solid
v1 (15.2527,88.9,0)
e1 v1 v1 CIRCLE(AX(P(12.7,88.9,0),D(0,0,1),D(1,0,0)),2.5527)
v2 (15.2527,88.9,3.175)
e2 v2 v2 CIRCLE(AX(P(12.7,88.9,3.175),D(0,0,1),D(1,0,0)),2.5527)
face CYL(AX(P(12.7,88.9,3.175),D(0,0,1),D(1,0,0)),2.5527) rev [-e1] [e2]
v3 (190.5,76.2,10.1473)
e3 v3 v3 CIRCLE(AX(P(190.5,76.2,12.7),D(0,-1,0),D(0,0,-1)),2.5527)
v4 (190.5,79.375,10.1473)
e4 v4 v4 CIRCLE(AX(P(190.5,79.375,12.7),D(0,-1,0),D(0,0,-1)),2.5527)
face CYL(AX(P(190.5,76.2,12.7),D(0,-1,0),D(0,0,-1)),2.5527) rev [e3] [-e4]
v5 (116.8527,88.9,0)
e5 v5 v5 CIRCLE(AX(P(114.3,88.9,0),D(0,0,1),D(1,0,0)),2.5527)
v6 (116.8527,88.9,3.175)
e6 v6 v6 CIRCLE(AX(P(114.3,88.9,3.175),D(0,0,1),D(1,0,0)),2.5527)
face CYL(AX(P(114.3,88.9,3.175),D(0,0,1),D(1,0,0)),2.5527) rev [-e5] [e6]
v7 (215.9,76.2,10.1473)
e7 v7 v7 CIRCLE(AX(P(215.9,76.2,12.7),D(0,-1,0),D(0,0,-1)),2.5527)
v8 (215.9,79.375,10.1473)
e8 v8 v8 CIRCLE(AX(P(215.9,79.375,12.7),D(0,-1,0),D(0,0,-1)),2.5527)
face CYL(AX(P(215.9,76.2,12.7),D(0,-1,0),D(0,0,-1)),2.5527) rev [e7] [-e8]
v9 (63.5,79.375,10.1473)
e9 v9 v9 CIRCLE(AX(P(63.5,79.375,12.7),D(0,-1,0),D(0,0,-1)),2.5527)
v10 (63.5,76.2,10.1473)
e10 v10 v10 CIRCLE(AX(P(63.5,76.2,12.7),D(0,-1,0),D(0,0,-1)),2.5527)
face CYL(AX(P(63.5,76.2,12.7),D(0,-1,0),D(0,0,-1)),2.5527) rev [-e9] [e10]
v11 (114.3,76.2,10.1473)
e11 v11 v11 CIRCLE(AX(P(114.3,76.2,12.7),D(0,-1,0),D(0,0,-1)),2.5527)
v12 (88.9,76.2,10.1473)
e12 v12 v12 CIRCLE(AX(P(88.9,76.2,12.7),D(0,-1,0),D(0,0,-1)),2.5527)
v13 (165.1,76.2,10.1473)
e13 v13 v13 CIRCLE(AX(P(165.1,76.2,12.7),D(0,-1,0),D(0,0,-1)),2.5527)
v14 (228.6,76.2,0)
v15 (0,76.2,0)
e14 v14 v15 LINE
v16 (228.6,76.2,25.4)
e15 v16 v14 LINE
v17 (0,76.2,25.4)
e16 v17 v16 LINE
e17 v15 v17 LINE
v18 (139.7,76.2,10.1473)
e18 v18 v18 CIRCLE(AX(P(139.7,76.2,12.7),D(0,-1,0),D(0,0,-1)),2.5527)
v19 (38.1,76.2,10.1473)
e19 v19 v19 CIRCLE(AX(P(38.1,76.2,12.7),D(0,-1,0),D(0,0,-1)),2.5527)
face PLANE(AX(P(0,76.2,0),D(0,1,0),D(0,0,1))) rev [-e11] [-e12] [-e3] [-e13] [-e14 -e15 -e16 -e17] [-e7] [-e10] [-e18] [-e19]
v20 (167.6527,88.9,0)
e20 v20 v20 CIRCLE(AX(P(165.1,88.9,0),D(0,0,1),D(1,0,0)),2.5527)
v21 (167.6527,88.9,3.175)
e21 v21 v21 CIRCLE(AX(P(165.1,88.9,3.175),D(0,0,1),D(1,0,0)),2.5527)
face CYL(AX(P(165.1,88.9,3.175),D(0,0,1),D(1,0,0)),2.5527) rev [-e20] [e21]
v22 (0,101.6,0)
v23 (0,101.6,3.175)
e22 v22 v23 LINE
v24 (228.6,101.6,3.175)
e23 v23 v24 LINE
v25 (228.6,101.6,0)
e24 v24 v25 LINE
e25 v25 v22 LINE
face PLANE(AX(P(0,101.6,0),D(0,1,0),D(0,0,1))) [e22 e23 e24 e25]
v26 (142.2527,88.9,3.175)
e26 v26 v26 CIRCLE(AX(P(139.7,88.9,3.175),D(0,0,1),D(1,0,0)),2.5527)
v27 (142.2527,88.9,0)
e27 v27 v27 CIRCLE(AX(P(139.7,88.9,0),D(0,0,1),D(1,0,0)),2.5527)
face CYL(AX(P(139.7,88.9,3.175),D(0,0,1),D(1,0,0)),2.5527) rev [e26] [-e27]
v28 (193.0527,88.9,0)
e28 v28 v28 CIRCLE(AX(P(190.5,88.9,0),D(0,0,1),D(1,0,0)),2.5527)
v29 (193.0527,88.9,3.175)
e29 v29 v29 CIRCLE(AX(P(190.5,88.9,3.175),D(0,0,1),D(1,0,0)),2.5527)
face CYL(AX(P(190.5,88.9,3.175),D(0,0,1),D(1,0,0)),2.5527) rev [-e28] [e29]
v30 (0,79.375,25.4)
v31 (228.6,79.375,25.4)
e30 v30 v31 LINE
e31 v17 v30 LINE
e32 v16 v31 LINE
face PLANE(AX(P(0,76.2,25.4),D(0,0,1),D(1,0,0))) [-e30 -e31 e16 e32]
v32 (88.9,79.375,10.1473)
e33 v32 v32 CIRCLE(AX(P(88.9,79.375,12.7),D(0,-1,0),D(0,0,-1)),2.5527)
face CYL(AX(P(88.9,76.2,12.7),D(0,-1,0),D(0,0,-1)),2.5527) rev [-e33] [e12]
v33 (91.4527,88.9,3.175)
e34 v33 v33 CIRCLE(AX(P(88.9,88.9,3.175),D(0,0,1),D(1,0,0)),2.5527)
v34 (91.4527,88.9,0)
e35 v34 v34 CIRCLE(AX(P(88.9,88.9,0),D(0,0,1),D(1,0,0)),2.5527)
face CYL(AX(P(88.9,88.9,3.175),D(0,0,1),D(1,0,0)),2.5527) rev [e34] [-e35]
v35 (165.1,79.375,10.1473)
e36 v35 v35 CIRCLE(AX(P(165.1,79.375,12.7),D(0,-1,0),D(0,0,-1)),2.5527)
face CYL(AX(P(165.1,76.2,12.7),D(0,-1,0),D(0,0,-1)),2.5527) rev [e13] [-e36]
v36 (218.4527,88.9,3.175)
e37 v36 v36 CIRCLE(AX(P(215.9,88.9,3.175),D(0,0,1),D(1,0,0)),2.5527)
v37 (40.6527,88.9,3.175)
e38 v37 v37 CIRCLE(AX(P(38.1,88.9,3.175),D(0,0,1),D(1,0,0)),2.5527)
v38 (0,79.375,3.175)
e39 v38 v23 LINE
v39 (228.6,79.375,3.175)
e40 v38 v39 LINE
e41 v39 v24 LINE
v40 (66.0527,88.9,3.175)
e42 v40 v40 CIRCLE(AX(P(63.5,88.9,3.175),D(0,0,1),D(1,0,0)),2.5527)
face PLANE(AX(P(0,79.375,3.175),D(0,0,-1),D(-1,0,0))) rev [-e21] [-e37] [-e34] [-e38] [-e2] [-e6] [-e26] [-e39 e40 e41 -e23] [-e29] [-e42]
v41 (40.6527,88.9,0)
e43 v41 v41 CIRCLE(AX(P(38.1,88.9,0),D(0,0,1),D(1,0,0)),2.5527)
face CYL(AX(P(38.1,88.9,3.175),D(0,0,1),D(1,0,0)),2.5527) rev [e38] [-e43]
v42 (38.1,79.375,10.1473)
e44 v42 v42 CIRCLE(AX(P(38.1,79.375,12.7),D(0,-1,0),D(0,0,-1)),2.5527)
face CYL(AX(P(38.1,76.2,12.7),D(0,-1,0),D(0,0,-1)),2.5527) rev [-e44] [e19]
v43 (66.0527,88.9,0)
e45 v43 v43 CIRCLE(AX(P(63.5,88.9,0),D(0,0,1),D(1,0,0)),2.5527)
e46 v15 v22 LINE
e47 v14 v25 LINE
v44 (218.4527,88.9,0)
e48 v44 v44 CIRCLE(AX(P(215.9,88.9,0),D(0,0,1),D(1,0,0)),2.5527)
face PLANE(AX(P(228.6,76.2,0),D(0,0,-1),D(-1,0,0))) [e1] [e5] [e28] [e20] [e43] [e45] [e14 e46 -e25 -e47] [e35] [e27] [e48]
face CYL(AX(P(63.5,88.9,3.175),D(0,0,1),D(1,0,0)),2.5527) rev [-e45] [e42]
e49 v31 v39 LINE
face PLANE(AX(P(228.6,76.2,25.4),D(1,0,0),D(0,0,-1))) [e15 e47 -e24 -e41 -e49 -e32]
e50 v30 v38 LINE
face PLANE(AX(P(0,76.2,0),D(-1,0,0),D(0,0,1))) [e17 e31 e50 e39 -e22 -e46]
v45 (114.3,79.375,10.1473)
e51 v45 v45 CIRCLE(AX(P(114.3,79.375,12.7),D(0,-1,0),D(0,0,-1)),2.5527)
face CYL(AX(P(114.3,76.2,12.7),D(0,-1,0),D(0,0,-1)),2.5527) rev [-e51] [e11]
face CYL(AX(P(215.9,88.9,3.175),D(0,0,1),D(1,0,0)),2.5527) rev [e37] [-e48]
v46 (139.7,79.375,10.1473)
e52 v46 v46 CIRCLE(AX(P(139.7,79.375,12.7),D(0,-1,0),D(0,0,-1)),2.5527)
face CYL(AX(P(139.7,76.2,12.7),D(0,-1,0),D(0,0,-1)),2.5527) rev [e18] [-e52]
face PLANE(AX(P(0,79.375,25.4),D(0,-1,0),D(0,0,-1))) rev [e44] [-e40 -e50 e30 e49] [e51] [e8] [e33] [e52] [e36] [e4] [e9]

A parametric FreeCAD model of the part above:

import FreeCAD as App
import Part
import Sketcher
Q = App.Units.Quantity

doc = App.newDocument("Part")
params = doc.addObject("Spreadsheet::Sheet", "Params")
for row, (alias, value) in enumerate([
    ("sketch1_width", "9 in"),
    ("sketch1_height", "1 in"),
    ("pad1_length", "1 in"),
    ("sketch2_width", "0.875 in"),
    ("sketch3_diameter", "0.201 in"),
    ("hole_diameter", "0.201 in"),
    ("hole_depth", "1 in"),
    ("sketch4_diameter", "0.201 in"),
    ("hole2_diameter", "0.201 in"),
], start=1):
    params.set(f"A{row}", alias)
    params.set(f"B{row}", "=" + value)
    params.setAlias(f"B{row}", alias)

body = doc.addObject("PartDesign::Body", "Body")

sketch1 = doc.addObject("Sketcher::SketchObject", "Sketch")
body.addObject(sketch1)
sketch1.AttachmentSupport = (doc.XZ_Plane, [""])
sketch1.MapMode = "FlatFace"
sketch1.AttachmentOffset = App.Placement(App.Vector(0, 0, -4 * 25.4), App.Rotation())
sketch1.addGeometry([
    Part.LineSegment(App.Vector(0, 0, 0), App.Vector(0, 25, 0)),
    Part.LineSegment(App.Vector(0, 25, 0), App.Vector(229, 25, 0)),
    Part.LineSegment(App.Vector(229, 25, 0), App.Vector(229, 0, 0)),
    Part.LineSegment(App.Vector(229, 0, 0), App.Vector(0, 0, 0)),
], False)
sketch1.addConstraint([
    Sketcher.Constraint("Coincident", 0, 2, 1, 1),
    Sketcher.Constraint("Coincident", 1, 2, 2, 1),
    Sketcher.Constraint("Coincident", 2, 2, 3, 1),
    Sketcher.Constraint("Coincident", 3, 2, 0, 1),
    Sketcher.Constraint("Vertical", 0),
    Sketcher.Constraint("Horizontal", 1),
    Sketcher.Constraint("Vertical", 2),
    Sketcher.Constraint("Horizontal", 3),
    Sketcher.Constraint("Coincident", 3, 2, -1, 1),
    Sketcher.Constraint("DistanceX", 1, 1, 1, 2, Q("9 in")),
    Sketcher.Constraint("DistanceY", 0, 1, 0, 2, Q("1 in")),
])
sketch1.setExpression("Constraints[9]", "Params.sketch1_width")
sketch1.setExpression("Constraints[10]", "Params.sketch1_height")
pad1 = doc.addObject("PartDesign::Pad", "Pad")
body.addObject(pad1)
pad1.Profile = sketch1
pad1.setExpression("Length", "Params.pad1_length")

sketch2 = doc.addObject("Sketcher::SketchObject", "Sketch001")
body.addObject(sketch2)
sketch2.AttachmentSupport = (doc.YZ_Plane, [""])
sketch2.MapMode = "FlatFace"
sketch2.AttachmentOffset = App.Placement(App.Vector(0, 0, 9 * 25.4), App.Rotation())
sketch2.addGeometry([
    Part.LineSegment(App.Vector(102, 25, 0), App.Vector(79, 25, 0)),
    Part.LineSegment(App.Vector(79, 25, 0), App.Vector(79, 3, 0)),
    Part.LineSegment(App.Vector(79, 3, 0), App.Vector(102, 3, 0)),
    Part.LineSegment(App.Vector(102, 3, 0), App.Vector(102, 25, 0)),
], False)
sketch2.addConstraint([
    Sketcher.Constraint("Coincident", 0, 2, 1, 1),
    Sketcher.Constraint("Coincident", 1, 2, 2, 1),
    Sketcher.Constraint("Coincident", 2, 2, 3, 1),
    Sketcher.Constraint("Coincident", 3, 2, 0, 1),
    Sketcher.Constraint("Horizontal", 0),
    Sketcher.Constraint("Vertical", 1),
    Sketcher.Constraint("Horizontal", 2),
    Sketcher.Constraint("Vertical", 3),
    Sketcher.Constraint("Equal", 2, 1),
    Sketcher.Constraint("DistanceY", -1, 1, 0, 2, Q("1 in")),
    Sketcher.Constraint("DistanceX", -1, 1, 2, 2, Q("4 in")),
    Sketcher.Constraint("DistanceX", 0, 2, 0, 1, Q("0.875 in")),
])
sketch2.setExpression("Constraints[11]", "Params.sketch2_width")
pocket1 = doc.addObject("PartDesign::Pocket", "Pocket")
body.addObject(pocket1)
pocket1.Profile = sketch2
pocket1.Type = "ThroughAll"

sketch3 = doc.addObject("Sketcher::SketchObject", "Sketch002")
body.addObject(sketch3)
sketch3.AttachmentSupport = (doc.XZ_Plane, [""])
sketch3.MapMode = "FlatFace"
sketch3.AttachmentOffset = App.Placement(App.Vector(0, 0, -3 * 25.4), App.Rotation())
sketch3.addGeometry([
    Part.Circle(App.Vector(-12.7, -12.7, 0), App.Vector(0, 0, 1), 2.6),
    Part.Circle(App.Vector(38.1, 12.7, 0), App.Vector(0, 0, 1), 2.6),
    Part.Circle(App.Vector(63.5, 12.7, 0), App.Vector(0, 0, 1), 2.6),
    Part.Circle(App.Vector(88.9, 12.7, 0), App.Vector(0, 0, 1), 2.6),
    Part.Circle(App.Vector(114.3, 12.7, 0), App.Vector(0, 0, 1), 2.6),
    Part.Circle(App.Vector(139.7, 12.7, 0), App.Vector(0, 0, 1), 2.6),
    Part.Circle(App.Vector(165.1, 12.7, 0), App.Vector(0, 0, 1), 2.6),
    Part.Circle(App.Vector(190.5, 12.7, 0), App.Vector(0, 0, 1), 2.6),
    Part.Circle(App.Vector(215.9, 12.7, 0), App.Vector(0, 0, 1), 2.6),
], False)
sketch3.addConstraint([
    Sketcher.Constraint("Equal", 0, 1),
    Sketcher.Constraint("Equal", 1, 2),
    Sketcher.Constraint("Equal", 2, 3),
    Sketcher.Constraint("Equal", 3, 4),
    Sketcher.Constraint("Equal", 4, 5),
    Sketcher.Constraint("Equal", 5, 6),
    Sketcher.Constraint("Equal", 6, 7),
    Sketcher.Constraint("Equal", 7, 8),
    Sketcher.Constraint("Horizontal", 1, 3, 2, 3),
    Sketcher.Constraint("Horizontal", 2, 3, 3, 3),
    Sketcher.Constraint("Horizontal", 3, 3, 4, 3),
    Sketcher.Constraint("Horizontal", 4, 3, 5, 3),
    Sketcher.Constraint("Horizontal", 5, 3, 6, 3),
    Sketcher.Constraint("Horizontal", 6, 3, 7, 3),
    Sketcher.Constraint("Horizontal", 7, 3, 8, 3),
    Sketcher.Constraint("Diameter", 0, Q("0.201 in")),
    Sketcher.Constraint("DistanceX", 0, 3, 1, 3, Q("2 in")),
    Sketcher.Constraint("DistanceY", 0, 3, 1, 3, Q("1 in")),
    Sketcher.Constraint("DistanceX", 1, 3, 2, 3, Q("1 in")),
    Sketcher.Constraint("DistanceX", 2, 3, 3, 3, Q("1 in")),
    Sketcher.Constraint("DistanceX", 3, 3, 4, 3, Q("1 in")),
    Sketcher.Constraint("DistanceX", 4, 3, 5, 3, Q("1 in")),
    Sketcher.Constraint("DistanceX", 5, 3, 6, 3, Q("1 in")),
    Sketcher.Constraint("DistanceX", 6, 3, 7, 3, Q("1 in")),
    Sketcher.Constraint("DistanceX", 7, 3, 8, 3, Q("1 in")),
    Sketcher.Constraint("DistanceX", 0, 3, -1, 1, Q("0.5 in")),
    Sketcher.Constraint("DistanceY", 0, 3, -1, 1, Q("0.5 in")),
])
sketch3.setExpression("Constraints[15]", "Params.sketch3_diameter")
doc.recompute()
hole = doc.addObject("PartDesign::Hole", "Hole")
body.addObject(hole)
hole.Profile = sketch3
hole.ThreadType = "None"
hole.setExpression("Diameter", "Params.hole_diameter")
hole.DepthType = "Dimension"
hole.setExpression("Depth", "Params.hole_depth")
hole.DrillPoint = "Flat"

sketch4 = doc.addObject("Sketcher::SketchObject", "Sketch003")
body.addObject(sketch4)
sketch4.AttachmentSupport = (doc.XY_Plane, [""])
sketch4.MapMode = "FlatFace"
sketch4.AttachmentOffset = App.Placement(App.Vector(0, 0, 0.125 * 25.4), App.Rotation())
sketch4.addGeometry([
    Part.Circle(App.Vector(12.7, 88.9, 0), App.Vector(0, 0, 1), 2.6),
    Part.Circle(App.Vector(38.1, 88.9, 0), App.Vector(0, 0, 1), 2.6),
    Part.Circle(App.Vector(63.5, 88.9, 0), App.Vector(0, 0, 1), 2.6),
    Part.Circle(App.Vector(88.9, 88.9, 0), App.Vector(0, 0, 1), 2.6),
    Part.Circle(App.Vector(114.3, 88.9, 0), App.Vector(0, 0, 1), 2.6),
    Part.Circle(App.Vector(139.7, 88.9, 0), App.Vector(0, 0, 1), 2.6),
    Part.Circle(App.Vector(165.1, 88.9, 0), App.Vector(0, 0, 1), 2.6),
    Part.Circle(App.Vector(190.5, 88.9, 0), App.Vector(0, 0, 1), 2.6),
    Part.Circle(App.Vector(215.9, 88.9, 0), App.Vector(0, 0, 1), 2.6),
], False)
sketch4.addConstraint([
    Sketcher.Constraint("Equal", 0, 1),
    Sketcher.Constraint("Equal", 1, 2),
    Sketcher.Constraint("Equal", 2, 3),
    Sketcher.Constraint("Equal", 3, 4),
    Sketcher.Constraint("Equal", 4, 5),
    Sketcher.Constraint("Equal", 5, 6),
    Sketcher.Constraint("Equal", 6, 7),
    Sketcher.Constraint("Equal", 7, 8),
    Sketcher.Constraint("Horizontal", 0, 3, 1, 3),
    Sketcher.Constraint("Horizontal", 1, 3, 2, 3),
    Sketcher.Constraint("Horizontal", 2, 3, 3, 3),
    Sketcher.Constraint("Horizontal", 3, 3, 4, 3),
    Sketcher.Constraint("Horizontal", 4, 3, 5, 3),
    Sketcher.Constraint("Horizontal", 5, 3, 6, 3),
    Sketcher.Constraint("Horizontal", 6, 3, 7, 3),
    Sketcher.Constraint("Horizontal", 7, 3, 8, 3),
    Sketcher.Constraint("Diameter", 0, Q("0.201 in")),
    Sketcher.Constraint("DistanceX", 0, 3, 1, 3, Q("1 in")),
    Sketcher.Constraint("DistanceX", 1, 3, 2, 3, Q("1 in")),
    Sketcher.Constraint("DistanceX", 2, 3, 3, 3, Q("1 in")),
    Sketcher.Constraint("DistanceX", 3, 3, 4, 3, Q("1 in")),
    Sketcher.Constraint("DistanceX", 4, 3, 5, 3, Q("1 in")),
    Sketcher.Constraint("DistanceX", 5, 3, 6, 3, Q("1 in")),
    Sketcher.Constraint("DistanceX", 6, 3, 7, 3, Q("1 in")),
    Sketcher.Constraint("DistanceX", 7, 3, 8, 3, Q("1 in")),
    Sketcher.Constraint("DistanceX", -1, 1, 0, 3, Q("0.5 in")),
    Sketcher.Constraint("DistanceY", -1, 1, 0, 3, Q("3.5 in")),
])
sketch4.setExpression("Constraints[16]", "Params.sketch4_diameter")
doc.recompute()
hole2 = doc.addObject("PartDesign::Hole", "Hole001")
body.addObject(hole2)
hole2.Profile = sketch4
hole2.ThreadType = "None"
hole2.setExpression("Diameter", "Params.hole2_diameter")
hole2.DepthType = "ThroughAll"

doc.recompute()
